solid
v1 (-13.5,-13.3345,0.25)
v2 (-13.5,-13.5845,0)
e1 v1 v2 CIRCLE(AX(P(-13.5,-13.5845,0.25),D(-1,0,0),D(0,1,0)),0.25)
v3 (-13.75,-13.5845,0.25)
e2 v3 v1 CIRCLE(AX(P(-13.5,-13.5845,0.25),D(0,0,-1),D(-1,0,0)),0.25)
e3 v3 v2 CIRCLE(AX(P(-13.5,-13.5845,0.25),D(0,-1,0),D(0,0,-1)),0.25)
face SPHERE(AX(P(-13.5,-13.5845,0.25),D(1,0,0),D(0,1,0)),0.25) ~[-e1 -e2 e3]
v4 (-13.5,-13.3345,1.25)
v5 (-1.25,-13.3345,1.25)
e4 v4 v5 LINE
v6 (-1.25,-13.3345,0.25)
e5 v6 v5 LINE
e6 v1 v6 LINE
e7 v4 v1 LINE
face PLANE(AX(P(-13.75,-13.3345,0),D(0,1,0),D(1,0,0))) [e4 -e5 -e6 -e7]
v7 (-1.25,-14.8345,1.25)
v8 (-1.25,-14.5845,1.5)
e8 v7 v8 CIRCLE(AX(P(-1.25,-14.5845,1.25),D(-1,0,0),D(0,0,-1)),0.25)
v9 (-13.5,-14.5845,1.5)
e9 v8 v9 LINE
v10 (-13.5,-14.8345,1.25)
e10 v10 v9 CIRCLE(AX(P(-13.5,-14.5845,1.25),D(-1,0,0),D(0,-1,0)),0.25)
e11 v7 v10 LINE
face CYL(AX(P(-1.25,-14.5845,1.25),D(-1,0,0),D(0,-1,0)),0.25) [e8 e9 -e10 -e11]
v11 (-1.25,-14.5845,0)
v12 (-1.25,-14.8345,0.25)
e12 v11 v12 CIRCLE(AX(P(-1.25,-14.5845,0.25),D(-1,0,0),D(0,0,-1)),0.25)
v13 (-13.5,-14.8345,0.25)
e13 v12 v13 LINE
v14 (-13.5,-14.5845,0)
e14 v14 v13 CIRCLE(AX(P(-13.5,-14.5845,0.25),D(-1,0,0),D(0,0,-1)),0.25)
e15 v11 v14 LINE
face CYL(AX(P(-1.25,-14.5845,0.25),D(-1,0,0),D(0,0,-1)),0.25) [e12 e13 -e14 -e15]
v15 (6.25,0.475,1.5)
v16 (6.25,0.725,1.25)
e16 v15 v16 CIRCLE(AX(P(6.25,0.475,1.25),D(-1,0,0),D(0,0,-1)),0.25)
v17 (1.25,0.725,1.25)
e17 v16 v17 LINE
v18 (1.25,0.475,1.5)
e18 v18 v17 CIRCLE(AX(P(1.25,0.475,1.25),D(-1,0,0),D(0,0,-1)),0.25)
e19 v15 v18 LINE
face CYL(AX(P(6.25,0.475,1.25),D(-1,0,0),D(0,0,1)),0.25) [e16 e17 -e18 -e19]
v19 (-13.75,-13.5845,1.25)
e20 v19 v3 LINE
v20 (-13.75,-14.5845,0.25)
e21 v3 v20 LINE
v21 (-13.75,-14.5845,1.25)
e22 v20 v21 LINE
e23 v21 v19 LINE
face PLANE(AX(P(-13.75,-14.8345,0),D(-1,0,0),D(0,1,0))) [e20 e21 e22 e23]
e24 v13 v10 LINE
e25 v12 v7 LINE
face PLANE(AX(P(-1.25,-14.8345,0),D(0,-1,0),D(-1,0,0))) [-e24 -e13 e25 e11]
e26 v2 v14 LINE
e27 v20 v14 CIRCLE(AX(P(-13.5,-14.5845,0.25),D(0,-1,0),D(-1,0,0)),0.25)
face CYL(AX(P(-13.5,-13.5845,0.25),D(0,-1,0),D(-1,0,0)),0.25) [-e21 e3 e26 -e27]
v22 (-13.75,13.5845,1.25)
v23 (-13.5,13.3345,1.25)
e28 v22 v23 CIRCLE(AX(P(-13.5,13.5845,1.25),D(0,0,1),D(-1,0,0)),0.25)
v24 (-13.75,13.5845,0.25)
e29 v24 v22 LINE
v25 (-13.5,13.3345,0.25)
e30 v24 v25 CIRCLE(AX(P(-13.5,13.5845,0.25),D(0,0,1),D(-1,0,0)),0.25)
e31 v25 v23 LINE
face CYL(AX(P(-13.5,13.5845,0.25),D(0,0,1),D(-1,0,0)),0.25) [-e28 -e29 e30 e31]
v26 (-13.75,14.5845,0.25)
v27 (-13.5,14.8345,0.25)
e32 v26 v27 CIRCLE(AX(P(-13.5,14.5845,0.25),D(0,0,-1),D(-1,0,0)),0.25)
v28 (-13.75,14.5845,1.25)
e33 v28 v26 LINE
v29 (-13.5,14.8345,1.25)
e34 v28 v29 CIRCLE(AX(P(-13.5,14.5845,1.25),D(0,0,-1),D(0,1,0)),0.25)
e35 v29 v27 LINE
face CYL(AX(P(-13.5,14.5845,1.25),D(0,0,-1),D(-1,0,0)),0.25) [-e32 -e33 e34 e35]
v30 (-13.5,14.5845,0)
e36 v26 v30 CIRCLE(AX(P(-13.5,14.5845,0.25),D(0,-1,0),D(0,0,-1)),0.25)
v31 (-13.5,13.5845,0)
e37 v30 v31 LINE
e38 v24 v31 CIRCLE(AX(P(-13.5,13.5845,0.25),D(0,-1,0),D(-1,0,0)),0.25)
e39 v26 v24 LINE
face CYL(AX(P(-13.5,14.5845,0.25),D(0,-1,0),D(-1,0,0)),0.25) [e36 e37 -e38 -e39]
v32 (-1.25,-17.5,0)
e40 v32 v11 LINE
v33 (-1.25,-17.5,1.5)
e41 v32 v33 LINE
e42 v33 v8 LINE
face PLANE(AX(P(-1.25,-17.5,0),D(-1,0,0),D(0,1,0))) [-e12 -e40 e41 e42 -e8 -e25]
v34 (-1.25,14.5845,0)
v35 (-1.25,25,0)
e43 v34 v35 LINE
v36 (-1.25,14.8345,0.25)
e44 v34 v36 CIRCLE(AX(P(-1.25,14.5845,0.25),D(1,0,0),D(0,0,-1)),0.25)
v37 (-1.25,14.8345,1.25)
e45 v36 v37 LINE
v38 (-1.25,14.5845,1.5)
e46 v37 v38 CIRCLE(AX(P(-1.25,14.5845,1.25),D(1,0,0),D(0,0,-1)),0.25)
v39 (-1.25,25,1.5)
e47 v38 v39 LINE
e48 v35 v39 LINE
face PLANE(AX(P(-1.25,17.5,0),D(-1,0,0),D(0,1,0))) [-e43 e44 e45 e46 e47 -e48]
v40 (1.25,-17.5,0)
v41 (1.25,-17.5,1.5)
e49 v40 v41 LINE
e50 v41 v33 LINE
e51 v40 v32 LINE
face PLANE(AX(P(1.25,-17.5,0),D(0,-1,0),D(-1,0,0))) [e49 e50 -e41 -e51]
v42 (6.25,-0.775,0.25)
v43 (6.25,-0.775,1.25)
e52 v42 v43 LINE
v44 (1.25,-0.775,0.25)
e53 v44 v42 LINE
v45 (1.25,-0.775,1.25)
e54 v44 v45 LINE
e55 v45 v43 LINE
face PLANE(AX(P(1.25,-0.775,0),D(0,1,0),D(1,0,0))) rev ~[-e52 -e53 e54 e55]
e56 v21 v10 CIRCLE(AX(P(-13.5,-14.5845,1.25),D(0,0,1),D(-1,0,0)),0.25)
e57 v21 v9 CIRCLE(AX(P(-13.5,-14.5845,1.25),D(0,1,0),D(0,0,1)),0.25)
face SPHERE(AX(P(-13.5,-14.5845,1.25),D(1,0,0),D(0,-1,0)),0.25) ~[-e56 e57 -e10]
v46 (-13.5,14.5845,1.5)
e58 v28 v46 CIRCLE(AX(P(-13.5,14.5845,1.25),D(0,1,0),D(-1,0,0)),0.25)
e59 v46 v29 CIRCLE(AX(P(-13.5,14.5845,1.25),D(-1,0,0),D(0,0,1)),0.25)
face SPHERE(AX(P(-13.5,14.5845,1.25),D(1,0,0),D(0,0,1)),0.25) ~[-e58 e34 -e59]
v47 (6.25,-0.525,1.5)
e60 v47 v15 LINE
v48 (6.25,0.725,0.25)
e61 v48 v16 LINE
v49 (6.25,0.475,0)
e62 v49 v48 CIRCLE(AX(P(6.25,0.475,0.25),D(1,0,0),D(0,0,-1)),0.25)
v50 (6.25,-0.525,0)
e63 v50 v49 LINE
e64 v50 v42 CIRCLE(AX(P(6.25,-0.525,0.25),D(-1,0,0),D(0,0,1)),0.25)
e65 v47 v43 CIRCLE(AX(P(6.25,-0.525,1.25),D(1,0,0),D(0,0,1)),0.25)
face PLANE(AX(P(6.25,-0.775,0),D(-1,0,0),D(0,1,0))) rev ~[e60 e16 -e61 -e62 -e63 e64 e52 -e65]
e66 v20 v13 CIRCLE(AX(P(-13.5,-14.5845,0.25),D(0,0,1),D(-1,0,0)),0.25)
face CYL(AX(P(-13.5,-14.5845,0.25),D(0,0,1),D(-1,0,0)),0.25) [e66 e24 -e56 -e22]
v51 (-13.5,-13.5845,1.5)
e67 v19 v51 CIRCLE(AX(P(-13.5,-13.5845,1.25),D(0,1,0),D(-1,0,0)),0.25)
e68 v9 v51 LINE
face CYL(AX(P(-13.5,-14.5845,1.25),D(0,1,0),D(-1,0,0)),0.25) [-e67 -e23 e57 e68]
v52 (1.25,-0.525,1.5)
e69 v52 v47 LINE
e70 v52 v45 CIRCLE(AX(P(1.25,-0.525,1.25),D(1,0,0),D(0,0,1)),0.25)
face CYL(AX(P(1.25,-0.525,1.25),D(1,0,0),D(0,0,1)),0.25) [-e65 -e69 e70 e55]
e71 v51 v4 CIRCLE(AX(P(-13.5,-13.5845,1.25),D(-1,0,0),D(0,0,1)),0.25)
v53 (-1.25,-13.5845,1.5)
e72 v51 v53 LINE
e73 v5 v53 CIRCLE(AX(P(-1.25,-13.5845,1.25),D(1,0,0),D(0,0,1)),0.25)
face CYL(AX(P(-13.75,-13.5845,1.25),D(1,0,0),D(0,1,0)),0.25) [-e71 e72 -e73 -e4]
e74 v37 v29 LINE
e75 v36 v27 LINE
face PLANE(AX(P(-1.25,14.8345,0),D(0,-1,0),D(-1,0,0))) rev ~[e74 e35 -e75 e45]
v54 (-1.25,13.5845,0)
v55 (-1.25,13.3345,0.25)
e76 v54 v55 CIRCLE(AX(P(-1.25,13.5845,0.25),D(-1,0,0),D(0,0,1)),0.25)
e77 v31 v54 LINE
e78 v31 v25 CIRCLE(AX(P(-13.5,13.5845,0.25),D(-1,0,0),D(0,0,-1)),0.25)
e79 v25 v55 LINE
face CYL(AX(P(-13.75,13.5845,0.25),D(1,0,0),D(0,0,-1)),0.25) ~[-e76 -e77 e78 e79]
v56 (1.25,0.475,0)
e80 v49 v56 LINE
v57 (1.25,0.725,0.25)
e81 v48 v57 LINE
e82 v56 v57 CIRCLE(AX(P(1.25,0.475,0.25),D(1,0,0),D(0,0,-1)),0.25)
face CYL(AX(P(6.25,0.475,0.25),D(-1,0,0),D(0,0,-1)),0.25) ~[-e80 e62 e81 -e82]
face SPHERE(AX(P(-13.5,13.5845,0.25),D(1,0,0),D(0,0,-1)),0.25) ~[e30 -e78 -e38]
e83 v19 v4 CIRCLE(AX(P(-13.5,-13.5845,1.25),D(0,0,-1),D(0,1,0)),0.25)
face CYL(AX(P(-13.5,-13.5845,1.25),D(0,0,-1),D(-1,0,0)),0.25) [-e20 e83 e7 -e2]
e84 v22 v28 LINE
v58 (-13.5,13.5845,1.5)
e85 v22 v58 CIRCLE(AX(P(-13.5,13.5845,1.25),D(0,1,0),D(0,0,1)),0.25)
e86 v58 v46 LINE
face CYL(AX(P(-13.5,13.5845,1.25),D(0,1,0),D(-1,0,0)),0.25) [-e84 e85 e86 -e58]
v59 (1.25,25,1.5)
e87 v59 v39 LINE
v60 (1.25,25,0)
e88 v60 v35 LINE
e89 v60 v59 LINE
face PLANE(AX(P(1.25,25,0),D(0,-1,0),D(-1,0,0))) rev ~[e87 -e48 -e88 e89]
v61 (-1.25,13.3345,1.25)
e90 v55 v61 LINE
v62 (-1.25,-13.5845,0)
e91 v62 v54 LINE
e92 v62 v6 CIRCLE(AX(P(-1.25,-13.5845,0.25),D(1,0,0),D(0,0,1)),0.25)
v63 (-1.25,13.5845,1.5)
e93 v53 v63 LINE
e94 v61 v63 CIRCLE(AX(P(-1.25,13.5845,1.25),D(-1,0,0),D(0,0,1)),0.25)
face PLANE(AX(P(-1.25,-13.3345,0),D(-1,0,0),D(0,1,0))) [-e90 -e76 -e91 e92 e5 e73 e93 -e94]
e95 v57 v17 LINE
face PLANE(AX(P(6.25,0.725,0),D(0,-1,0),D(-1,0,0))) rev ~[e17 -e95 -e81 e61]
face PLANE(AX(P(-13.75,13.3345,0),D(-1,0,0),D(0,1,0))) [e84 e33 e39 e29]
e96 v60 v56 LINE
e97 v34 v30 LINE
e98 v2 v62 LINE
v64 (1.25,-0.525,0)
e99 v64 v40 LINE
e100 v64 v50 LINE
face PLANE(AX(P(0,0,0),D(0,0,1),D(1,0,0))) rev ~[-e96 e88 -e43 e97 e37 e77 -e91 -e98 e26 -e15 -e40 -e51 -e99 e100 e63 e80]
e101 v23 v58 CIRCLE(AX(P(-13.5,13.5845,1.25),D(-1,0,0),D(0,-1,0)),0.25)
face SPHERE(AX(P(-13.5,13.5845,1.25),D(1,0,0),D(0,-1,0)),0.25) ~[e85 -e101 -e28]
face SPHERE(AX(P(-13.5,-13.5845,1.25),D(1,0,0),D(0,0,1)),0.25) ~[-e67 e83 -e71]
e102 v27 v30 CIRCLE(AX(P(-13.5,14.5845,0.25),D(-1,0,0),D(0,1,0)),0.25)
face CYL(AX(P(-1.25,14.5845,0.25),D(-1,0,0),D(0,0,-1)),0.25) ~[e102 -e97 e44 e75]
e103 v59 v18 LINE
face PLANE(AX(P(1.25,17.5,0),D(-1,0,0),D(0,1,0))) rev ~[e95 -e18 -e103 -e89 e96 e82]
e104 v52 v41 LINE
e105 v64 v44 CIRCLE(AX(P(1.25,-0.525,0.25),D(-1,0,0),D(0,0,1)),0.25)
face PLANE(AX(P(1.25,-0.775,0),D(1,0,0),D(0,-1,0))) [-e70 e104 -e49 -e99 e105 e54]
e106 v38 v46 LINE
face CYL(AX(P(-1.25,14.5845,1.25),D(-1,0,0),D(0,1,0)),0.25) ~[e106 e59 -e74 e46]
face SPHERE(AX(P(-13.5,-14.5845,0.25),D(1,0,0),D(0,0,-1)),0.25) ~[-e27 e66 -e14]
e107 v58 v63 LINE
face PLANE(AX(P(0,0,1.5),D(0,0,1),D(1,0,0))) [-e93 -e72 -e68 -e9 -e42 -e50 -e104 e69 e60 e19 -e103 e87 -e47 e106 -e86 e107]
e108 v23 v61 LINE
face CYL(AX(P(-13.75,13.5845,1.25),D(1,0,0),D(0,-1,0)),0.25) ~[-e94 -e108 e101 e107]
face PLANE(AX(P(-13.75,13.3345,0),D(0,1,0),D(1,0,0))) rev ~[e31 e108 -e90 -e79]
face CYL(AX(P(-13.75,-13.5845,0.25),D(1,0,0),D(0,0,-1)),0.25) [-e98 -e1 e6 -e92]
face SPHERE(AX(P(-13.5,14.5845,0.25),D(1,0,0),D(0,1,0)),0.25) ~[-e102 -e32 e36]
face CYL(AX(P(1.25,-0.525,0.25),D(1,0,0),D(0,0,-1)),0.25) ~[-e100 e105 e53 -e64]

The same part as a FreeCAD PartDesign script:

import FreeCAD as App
import Part
import Sketcher
from FreeCAD import Vector
Q = App.Units.Quantity


def edges_at(feature, points):
    """Names of the edges that pass closest to the given points."""
    edges = feature.Shape.Edges
    near = lambda p: min(range(len(edges)), key=lambda i: edges[i].distToShape(Part.Vertex(*p))[0])
    return sorted({f"Edge{near(p) + 1}" for p in points})


def add_polygon(sketch, points):
    """Adds a closed chain of lines whose ends are joined by coincident constraints."""
    first, n = sketch.GeometryCount, len(points)
    for a, b in zip(points, points[1:] + points[:1]):
        sketch.addGeometry(Part.LineSegment(App.Vector(*a, 0), App.Vector(*b, 0)), False)
    for i in range(n):
        sketch.addConstraint(Sketcher.Constraint("Coincident", first + i, 2, first + (i + 1) % n, 1))

doc = App.newDocument("Part")
params = doc.addObject("Spreadsheet::Sheet", "Params")
for row, (alias, value) in enumerate([
    ("sketch1_width", "5 mm"),
    ("sketch1_width2", "12.5 mm"),
    ("sketch1_width3", "2.5 mm"),
    ("sketch1_height", "1.5 mm"),
    ("pad1_length", "1.5 mm"),
    ("fillet_radius", "0.25 mm"),
    ("fillet2_radius", "0.25 mm"),
    ("fillet3_radius", "0.25 mm"),
    ("fillet4_radius", "0.25 mm"),
], start=1):
    params.set(f"A{row}", alias)
    params.set(f"B{row}", "=" + value)
    params.setAlias(f"B{row}", alias)

body = doc.addObject("PartDesign::Body", "Body")

sketch1 = body.newObject("Sketcher::SketchObject", "Sketch")
sketch1.AttachmentSupport = (doc.getObject("XY_Plane"), [""])
sketch1.MapMode = "FlatFace"
add_polygon(sketch1, [(-1.25, 25), (-1.25, 14.8345), (-13.75, 14.8345), (-13.75, 13.3345), (-1.25, 13.3345), (-1.25, -13.3345), (-13.75, -13.3345), (-13.75, -14.8345), (-1.25, -14.8345), (-1.25, -17.5), (1.25, -17.5), (1.25, -0.775), (6.25, -0.775), (6.25, 0.725), (1.25, 0.725), (1.25, 25)])
sketch1.addConstraint(Sketcher.Constraint("Vertical", 0))
sketch1.addConstraint(Sketcher.Constraint("Horizontal", 1))
sketch1.addConstraint(Sketcher.Constraint("Vertical", 2))
sketch1.addConstraint(Sketcher.Constraint("Horizontal", 3))
sketch1.addConstraint(Sketcher.Constraint("Vertical", 4))
sketch1.addConstraint(Sketcher.Constraint("Horizontal", 5))
sketch1.addConstraint(Sketcher.Constraint("Vertical", 6))
sketch1.addConstraint(Sketcher.Constraint("Horizontal", 7))
sketch1.addConstraint(Sketcher.Constraint("Vertical", 8))
sketch1.addConstraint(Sketcher.Constraint("Horizontal", 9))
sketch1.addConstraint(Sketcher.Constraint("Vertical", 10))
sketch1.addConstraint(Sketcher.Constraint("Horizontal", 11))
sketch1.addConstraint(Sketcher.Constraint("Vertical", 12))
sketch1.addConstraint(Sketcher.Constraint("Horizontal", 13))
sketch1.addConstraint(Sketcher.Constraint("Vertical", 14))
sketch1.addConstraint(Sketcher.Constraint("Horizontal", 15))
sketch1.addConstraint(Sketcher.Constraint("Symmetric", 2, 2, 5, 2, -1))
sketch1.addConstraint(Sketcher.Constraint("Symmetric", 0, 2, 7, 2, -1))
sketch1.addConstraint(Sketcher.Constraint("Vertical", 0, 2, 3, 2))
sketch1.addConstraint(Sketcher.Constraint("Vertical", 10, 2, 13, 2))
sketch1.addConstraint(Sketcher.Constraint("Equal", 6, 12))
sketch1.addConstraint(Sketcher.Constraint("DistanceX", 11, 1, 11, 2, Q("5 mm")))
sketch1.addConstraint(Sketcher.Constraint("DistanceX", 1, 2, 1, 1, Q("12.5 mm")))
sketch1.addConstraint(Sketcher.Constraint("DistanceX", 9, 1, 9, 2, Q("2.5 mm")))
sketch1.addConstraint(Sketcher.Constraint("DistanceY", 2, 2, 2, 1, Q("1.5 mm")))
sketch1.addConstraint(Sketcher.Constraint("DistanceY", 10, 2, -1, 1, Q("0.775 mm")))
sketch1.addConstraint(Sketcher.Constraint("DistanceY", -1, 1, 14, 2, Q("25 mm")))
sketch1.addConstraint(Sketcher.Constraint("DistanceY", 8, 2, -1, 1, Q("17.5 mm")))
sketch1.addConstraint(Sketcher.Constraint("DistanceY", 4, 2, 4, 1, Q("26.669 mm")))
sketch1.addConstraint(Sketcher.Constraint("DistanceX", 0, 2, -1, 1, Q("1.25 mm")))
sketch1.setExpression("Constraints[37]", "Params.sketch1_width")
sketch1.setExpression("Constraints[38]", "Params.sketch1_width2")
sketch1.setExpression("Constraints[39]", "Params.sketch1_width3")
sketch1.setExpression("Constraints[40]", "Params.sketch1_height")
pad1 = body.newObject("PartDesign::Pad", "Pad")
pad1.Profile = sketch1
pad1.setExpression("Length", "Params.pad1_length")
doc.recompute()

fillet = body.newObject("PartDesign::Fillet", "Fillet")
fillet.Base = (pad1, edges_at(pad1, [
    (3.75, -0.775, 1.5),
    (3.75, -0.775, 0),
    (3.75, 0.725, 0),
    (3.75, 0.725, 1.5),
]))
fillet.setExpression("Radius", "Params.fillet_radius")
doc.recompute()

fillet2 = body.newObject("PartDesign::Fillet", "Fillet001")
fillet2.Base = (fillet, edges_at(fillet, [
    (-7.5, -14.835, 1.5),
    (-7.5, -13.335, 1.5),
    (-7.5, -13.335, 0),
    (-7.5, -14.835, 0),
]))
fillet2.setExpression("Radius", "Params.fillet2_radius")
doc.recompute()

fillet3 = body.newObject("PartDesign::Fillet", "Fillet002")
fillet3.Base = (fillet2, edges_at(fillet2, [
    (-7.5, 14.835, 1.5),
    (-7.5, 13.335, 1.5),
    (-7.5, 14.835, 0),
    (-7.5, 13.335, 0),
]))
fillet3.setExpression("Radius", "Params.fillet3_radius")
doc.recompute()

fillet4 = body.newObject("PartDesign::Fillet", "Fillet003")
fillet4.Base = (fillet3, edges_at(fillet3, [
    (-13.75, -14.835, 0.75),
    (-13.75, -14.761, 0.073),
    (-13.75, -14.085, 0),
    (-13.75, -13.408, 0.073),
    (-13.75, -13.335, 0.75),
    (-13.75, -13.408, 1.427),
    (-13.75, -14.085, 1.5),
    (-13.75, -14.761, 1.427),
    (-13.75, 13.335, 0.75),
    (-13.75, 13.408, 0.073),
    (-13.75, 14.085, 0),
    (-13.75, 14.761, 0.073),
    (-13.75, 14.835, 0.75),
    (-13.75, 14.761, 1.427),
    (-13.75, 14.085, 1.5),
    (-13.75, 13.408, 1.427),
]))
fillet4.setExpression("Radius", "Params.fillet4_radius")

doc.recompute()
